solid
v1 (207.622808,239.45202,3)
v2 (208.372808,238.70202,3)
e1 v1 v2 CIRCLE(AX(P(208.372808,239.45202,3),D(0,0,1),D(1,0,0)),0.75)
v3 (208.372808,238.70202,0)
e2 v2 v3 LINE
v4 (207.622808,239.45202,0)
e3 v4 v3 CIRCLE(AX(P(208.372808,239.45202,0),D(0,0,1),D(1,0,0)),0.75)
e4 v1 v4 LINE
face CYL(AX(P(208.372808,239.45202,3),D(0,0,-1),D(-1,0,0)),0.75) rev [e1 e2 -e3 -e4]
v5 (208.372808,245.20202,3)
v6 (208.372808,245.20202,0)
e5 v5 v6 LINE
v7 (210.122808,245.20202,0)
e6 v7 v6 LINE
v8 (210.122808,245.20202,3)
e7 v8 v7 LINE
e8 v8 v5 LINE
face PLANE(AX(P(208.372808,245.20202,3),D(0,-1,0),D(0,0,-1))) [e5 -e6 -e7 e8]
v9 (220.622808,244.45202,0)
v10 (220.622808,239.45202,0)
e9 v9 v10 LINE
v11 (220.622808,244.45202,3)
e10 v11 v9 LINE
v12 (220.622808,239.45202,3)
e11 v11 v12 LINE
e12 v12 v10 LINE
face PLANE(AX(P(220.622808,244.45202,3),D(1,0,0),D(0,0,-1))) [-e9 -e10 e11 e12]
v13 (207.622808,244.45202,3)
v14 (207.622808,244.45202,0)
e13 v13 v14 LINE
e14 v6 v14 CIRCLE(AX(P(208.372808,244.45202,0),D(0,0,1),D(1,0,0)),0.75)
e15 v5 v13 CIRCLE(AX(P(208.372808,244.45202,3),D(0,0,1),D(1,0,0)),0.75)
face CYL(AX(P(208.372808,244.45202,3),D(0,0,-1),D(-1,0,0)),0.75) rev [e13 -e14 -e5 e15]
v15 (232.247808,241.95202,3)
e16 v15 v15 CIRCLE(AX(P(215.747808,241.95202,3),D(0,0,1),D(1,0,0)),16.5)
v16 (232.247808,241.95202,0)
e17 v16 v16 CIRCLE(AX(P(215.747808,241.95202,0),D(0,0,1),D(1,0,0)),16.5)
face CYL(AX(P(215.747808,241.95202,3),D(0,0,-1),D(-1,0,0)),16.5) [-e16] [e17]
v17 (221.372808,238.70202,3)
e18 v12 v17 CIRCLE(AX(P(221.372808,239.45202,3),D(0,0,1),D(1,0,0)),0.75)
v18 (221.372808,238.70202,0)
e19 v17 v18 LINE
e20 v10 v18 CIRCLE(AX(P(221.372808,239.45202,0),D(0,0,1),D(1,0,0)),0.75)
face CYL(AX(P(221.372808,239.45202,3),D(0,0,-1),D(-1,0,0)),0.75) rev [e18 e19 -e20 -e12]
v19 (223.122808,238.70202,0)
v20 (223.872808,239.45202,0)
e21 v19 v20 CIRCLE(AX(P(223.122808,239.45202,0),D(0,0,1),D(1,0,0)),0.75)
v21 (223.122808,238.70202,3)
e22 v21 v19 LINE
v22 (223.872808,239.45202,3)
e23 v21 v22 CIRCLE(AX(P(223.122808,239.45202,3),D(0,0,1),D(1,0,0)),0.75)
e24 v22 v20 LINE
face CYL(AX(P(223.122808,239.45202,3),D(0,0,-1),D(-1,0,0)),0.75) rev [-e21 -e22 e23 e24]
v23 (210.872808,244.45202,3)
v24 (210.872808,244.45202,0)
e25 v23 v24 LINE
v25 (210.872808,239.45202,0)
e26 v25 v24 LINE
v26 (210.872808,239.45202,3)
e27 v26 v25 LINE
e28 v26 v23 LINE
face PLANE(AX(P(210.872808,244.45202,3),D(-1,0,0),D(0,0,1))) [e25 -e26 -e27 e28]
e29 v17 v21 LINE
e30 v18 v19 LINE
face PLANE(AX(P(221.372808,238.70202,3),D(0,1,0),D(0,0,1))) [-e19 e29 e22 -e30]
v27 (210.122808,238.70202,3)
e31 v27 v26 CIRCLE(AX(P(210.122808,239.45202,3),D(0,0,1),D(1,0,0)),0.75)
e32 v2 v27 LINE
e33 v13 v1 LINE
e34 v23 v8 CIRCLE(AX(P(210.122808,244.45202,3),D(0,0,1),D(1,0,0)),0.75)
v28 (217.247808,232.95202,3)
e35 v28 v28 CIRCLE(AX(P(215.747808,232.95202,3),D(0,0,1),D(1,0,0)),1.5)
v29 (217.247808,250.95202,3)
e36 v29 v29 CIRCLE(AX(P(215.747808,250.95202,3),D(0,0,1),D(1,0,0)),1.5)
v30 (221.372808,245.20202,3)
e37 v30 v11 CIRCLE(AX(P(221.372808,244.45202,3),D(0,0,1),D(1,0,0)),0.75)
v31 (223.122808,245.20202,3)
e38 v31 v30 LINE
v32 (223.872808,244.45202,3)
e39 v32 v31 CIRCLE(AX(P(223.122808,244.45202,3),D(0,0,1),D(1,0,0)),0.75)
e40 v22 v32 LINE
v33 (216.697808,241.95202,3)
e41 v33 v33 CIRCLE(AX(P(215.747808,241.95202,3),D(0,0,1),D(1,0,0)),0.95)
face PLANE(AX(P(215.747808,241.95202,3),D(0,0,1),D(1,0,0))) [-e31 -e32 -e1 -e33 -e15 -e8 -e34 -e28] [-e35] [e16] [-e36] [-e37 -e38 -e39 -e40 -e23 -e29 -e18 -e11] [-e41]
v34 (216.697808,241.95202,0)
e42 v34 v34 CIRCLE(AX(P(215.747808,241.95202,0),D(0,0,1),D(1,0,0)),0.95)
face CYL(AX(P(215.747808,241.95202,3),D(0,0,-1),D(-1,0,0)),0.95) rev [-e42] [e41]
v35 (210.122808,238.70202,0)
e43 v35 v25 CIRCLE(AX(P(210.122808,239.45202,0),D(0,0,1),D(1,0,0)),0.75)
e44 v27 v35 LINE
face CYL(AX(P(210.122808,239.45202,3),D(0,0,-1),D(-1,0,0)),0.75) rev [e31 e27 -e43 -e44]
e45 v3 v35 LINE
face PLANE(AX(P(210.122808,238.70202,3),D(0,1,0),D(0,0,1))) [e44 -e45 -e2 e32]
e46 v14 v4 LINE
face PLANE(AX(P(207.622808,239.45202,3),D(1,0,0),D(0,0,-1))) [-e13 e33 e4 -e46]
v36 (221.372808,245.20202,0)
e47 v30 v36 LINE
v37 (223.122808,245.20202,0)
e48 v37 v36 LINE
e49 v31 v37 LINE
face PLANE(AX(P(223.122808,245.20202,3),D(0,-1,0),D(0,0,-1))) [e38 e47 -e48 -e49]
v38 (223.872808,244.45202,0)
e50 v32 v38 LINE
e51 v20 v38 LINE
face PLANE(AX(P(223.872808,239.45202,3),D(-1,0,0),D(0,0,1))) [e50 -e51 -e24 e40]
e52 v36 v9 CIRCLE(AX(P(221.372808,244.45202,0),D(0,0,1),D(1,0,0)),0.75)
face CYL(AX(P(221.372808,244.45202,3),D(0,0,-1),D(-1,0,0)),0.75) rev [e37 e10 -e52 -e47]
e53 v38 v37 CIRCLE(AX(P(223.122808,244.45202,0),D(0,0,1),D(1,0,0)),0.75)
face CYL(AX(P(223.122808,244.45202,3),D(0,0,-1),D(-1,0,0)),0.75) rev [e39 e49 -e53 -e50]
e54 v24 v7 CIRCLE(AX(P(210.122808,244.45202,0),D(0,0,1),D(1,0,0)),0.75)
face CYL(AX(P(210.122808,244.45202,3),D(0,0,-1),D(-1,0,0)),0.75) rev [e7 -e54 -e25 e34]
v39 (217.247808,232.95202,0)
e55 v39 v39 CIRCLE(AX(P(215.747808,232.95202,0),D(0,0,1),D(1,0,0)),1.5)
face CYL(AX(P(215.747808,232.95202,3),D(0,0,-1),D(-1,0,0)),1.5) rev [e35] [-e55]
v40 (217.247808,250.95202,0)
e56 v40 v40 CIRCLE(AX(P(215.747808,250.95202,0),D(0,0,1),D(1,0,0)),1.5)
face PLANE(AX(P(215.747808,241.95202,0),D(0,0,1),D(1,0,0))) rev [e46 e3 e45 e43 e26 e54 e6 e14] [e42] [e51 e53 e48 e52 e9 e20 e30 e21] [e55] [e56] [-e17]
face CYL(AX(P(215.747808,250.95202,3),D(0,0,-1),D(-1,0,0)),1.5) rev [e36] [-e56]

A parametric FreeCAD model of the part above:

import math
import FreeCAD as App
import Part
import Sketcher
Q = App.Units.Quantity

doc = App.newDocument("Part")
body = doc.addObject("PartDesign::Body", "Body")

# Sketch on XY plane
sketch1 = body.newObject("Sketcher::SketchObject", "Sketch")
sketch1.AttachmentSupport = (doc.getObject("XY_Plane"), [""])
sketch1.MapMode = "FlatFace"
sketch1.addGeometry([
    Part.Circle(App.Vector(215.747808, 241.95202, 0), App.Vector(0, 0, 1), 16.5),  # 0
    Part.Circle(App.Vector(215.747808, 232.95202, 0), App.Vector(0, 0, 1), 1.5),  # 1
    Part.ArcOfCircle(Part.Circle(App.Vector(208.372808, 244.45202, 0), App.Vector(0, 0, 1), 0.75), math.radians(90), math.radians(180)),  # 2
    Part.LineSegment(App.Vector(208.372808, 245.20202, 0), App.Vector(210.122808, 245.20202, 0)),  # 3
    Part.ArcOfCircle(Part.Circle(App.Vector(210.122808, 244.45202, 0), App.Vector(0, 0, 1), 0.75), math.radians(0), math.radians(90)),  # 4
    Part.LineSegment(App.Vector(210.872808, 244.45202, 0), App.Vector(210.872808, 239.45202, 0)),  # 5
    Part.ArcOfCircle(Part.Circle(App.Vector(210.122808, 239.45202, 0), App.Vector(0, 0, 1), 0.75), math.radians(-90), math.radians(0)),  # 6
    Part.LineSegment(App.Vector(210.122808, 238.70202, 0), App.Vector(208.372808, 238.70202, 0)),  # 7
    Part.ArcOfCircle(Part.Circle(App.Vector(208.372808, 239.45202, 0), App.Vector(0, 0, 1), 0.75), math.radians(-180), math.radians(-90)),  # 8
    Part.LineSegment(App.Vector(207.622808, 239.45202, 0), App.Vector(207.622808, 244.45202, 0)),  # 9
    Part.Circle(App.Vector(215.747808, 241.95202, 0), App.Vector(0, 0, 1), 0.95),  # 10
    Part.LineSegment(App.Vector(221.372808, 245.20202, 0), App.Vector(223.122808, 245.20202, 0)),  # 11
    Part.ArcOfCircle(Part.Circle(App.Vector(223.122808, 244.45202, 0), App.Vector(0, 0, 1), 0.75), math.radians(0), math.radians(90)),  # 12
    Part.LineSegment(App.Vector(223.872808, 244.45202, 0), App.Vector(223.872808, 239.45202, 0)),  # 13
    Part.ArcOfCircle(Part.Circle(App.Vector(223.122808, 239.45202, 0), App.Vector(0, 0, 1), 0.75), math.radians(-90), math.radians(0)),  # 14
    Part.LineSegment(App.Vector(223.122808, 238.70202, 0), App.Vector(221.372808, 238.70202, 0)),  # 15
    Part.ArcOfCircle(Part.Circle(App.Vector(221.372808, 239.45202, 0), App.Vector(0, 0, 1), 0.75), math.radians(-180), math.radians(-90)),  # 16
    Part.LineSegment(App.Vector(220.622808, 239.45202, 0), App.Vector(220.622808, 244.45202, 0)),  # 17
    Part.ArcOfCircle(Part.Circle(App.Vector(221.372808, 244.45202, 0), App.Vector(0, 0, 1), 0.75), math.radians(90), math.radians(180)),  # 18
    Part.Circle(App.Vector(215.747808, 250.95202, 0), App.Vector(0, 0, 1), 1.5),  # 19
], False)
sketch1.addConstraint([
    Sketcher.Constraint("Tangent", 2, 1, 3, 1),
    Sketcher.Constraint("Tangent", 3, 2, 4, 2),
    Sketcher.Constraint("Tangent", 4, 1, 5, 1),
    Sketcher.Constraint("Tangent", 5, 2, 6, 2),
    Sketcher.Constraint("Tangent", 6, 1, 7, 1),
    Sketcher.Constraint("Tangent", 7, 2, 8, 2),
    Sketcher.Constraint("Tangent", 8, 1, 9, 1),
    Sketcher.Constraint("Tangent", 9, 2, 2, 2),
    Sketcher.Constraint("Tangent", 11, 2, 12, 2),
    Sketcher.Constraint("Tangent", 12, 1, 13, 1),
    Sketcher.Constraint("Tangent", 13, 2, 14, 2),
    Sketcher.Constraint("Tangent", 14, 1, 15, 1),
    Sketcher.Constraint("Tangent", 15, 2, 16, 2),
    Sketcher.Constraint("Tangent", 16, 1, 17, 1),
    Sketcher.Constraint("Tangent", 17, 2, 18, 2),
    Sketcher.Constraint("Tangent", 18, 1, 11, 1),
    Sketcher.Constraint("Horizontal", 3),
    Sketcher.Constraint("Vertical", 5),
    Sketcher.Constraint("Horizontal", 7),
    Sketcher.Constraint("Vertical", 9),
    Sketcher.Constraint("Horizontal", 11),
    Sketcher.Constraint("Vertical", 13),
    Sketcher.Constraint("Horizontal", 15),
    Sketcher.Constraint("Vertical", 17),
    Sketcher.Constraint("Coincident", 10, 3, 0, 3),
    Sketcher.Constraint("Equal", 2, 4),
    Sketcher.Constraint("Equal", 4, 6),
    Sketcher.Constraint("Equal", 6, 8),
    Sketcher.Constraint("Equal", 8, 12),
    Sketcher.Constraint("Equal", 12, 14),
    Sketcher.Constraint("Equal", 14, 16),
    Sketcher.Constraint("Equal", 16, 18),
    Sketcher.Constraint("Equal", 1, 19),
    Sketcher.Constraint("Horizontal", 4, 3, 12, 3),
    Sketcher.Constraint("Horizontal", 8, 3, 14, 3),
    Sketcher.Constraint("Vertical", 0, 3, 1, 3),
    Sketcher.Constraint("Vertical", 10, 3, 19, 3),
    Sketcher.Constraint("Equal", 7, 11),
    Sketcher.Constraint("Diameter", 0, Q("33 mm")),
    Sketcher.Constraint("Diameter", 1, Q("3 mm")),
    Sketcher.Constraint("Diameter", 10, Q("1.9 mm")),
    Sketcher.Constraint("DistanceY", 5, 2, 5, 1, Q("5 mm")),
    Sketcher.Constraint("Radius", 2, Q("0.75 mm")),
    Sketcher.Constraint("DistanceY", 1, 3, 0, 3, Q("9 mm")),
    Sketcher.Constraint("DistanceX", 4, 3, 12, 3, Q("13 mm")),
    Sketcher.Constraint("DistanceY", 0, 3, 19, 3, Q("9 mm")),
    Sketcher.Constraint("DistanceX", 3, 1, 3, 2, Q("1.75 mm")),
    Sketcher.Constraint("DistanceY", 0, 3, 2, 3, Q("2.5 mm")),
    Sketcher.Constraint("DistanceX", 2, 3, 0, 3, Q("7.375 mm")),
    Sketcher.Constraint("DistanceY", -1, 1, 0, 3, Q("241.95202 mm")),
    Sketcher.Constraint("DistanceX", -1, 1, 0, 3, Q("215.747808 mm")),
])
pad1 = body.newObject("PartDesign::Pad", "Pad")
pad1.Profile = sketch1
pad1.Length = 3

doc.recompute()
